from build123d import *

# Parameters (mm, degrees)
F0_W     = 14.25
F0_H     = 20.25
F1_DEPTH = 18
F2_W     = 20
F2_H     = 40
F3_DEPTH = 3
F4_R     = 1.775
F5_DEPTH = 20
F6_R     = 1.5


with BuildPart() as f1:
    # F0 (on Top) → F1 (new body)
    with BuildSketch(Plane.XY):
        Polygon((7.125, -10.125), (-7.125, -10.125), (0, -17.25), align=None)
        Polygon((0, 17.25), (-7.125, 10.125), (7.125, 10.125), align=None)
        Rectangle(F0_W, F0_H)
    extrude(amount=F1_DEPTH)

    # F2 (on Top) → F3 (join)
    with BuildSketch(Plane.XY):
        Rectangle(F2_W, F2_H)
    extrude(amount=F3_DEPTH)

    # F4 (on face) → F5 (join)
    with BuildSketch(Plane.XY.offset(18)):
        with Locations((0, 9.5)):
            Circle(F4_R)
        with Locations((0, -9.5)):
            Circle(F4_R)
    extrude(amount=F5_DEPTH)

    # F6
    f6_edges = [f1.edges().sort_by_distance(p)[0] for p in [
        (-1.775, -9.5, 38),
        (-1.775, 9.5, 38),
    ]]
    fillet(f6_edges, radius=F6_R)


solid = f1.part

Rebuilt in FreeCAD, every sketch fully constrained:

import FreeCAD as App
import Part
import Sketcher
from FreeCAD import Vector


def edges_at(feature, points):
    """Names of the edges that pass closest to the given points."""
    edges = feature.Shape.Edges
    near = lambda p: min(range(len(edges)), key=lambda i: edges[i].distToShape(Part.Vertex(*p))[0])
    return sorted({f"Edge{near(p) + 1}" for p in points})


def add_polygon(sketch, points):
    """Adds a closed chain of lines whose ends are joined by coincident constraints."""
    first, n = sketch.GeometryCount, len(points)
    for a, b in zip(points, points[1:] + points[:1]):
        sketch.addGeometry(Part.LineSegment(App.Vector(*a, 0), App.Vector(*b, 0)), False)
    for i in range(n):
        sketch.addConstraint(Sketcher.Constraint("Coincident", first + i, 2, first + (i + 1) % n, 1))

doc = App.newDocument("Part")
body = doc.addObject("PartDesign::Body", "Body")

# Sketch on XY plane
sketch1 = body.newObject("Sketcher::SketchObject", "Sketch")
sketch1.AttachmentSupport = (doc.getObject("XY_Plane"), [""])
sketch1.MapMode = "FlatFace"
add_polygon(sketch1, [(0, -17), (7, -10), (7, 10), (0, 17), (-7, 10), (-7, -10)])  # lines 0-5
sketch1.addConstraint([
    Sketcher.Constraint("Vertical", 1),
    Sketcher.Constraint("Vertical", 4),
    Sketcher.Constraint("Symmetric", 0, 2, 3, 2, -1, 1),
    Sketcher.Constraint("Symmetric", 2, 2, 5, 2, -1, 1),
    Sketcher.Constraint("PointOnObject", 2, 2, -2),
    Sketcher.Constraint("Perpendicular", 0, 2),
    Sketcher.Constraint("Perpendicular", 3, 5),
    Sketcher.Constraint("Horizontal", 1, 2, 3, 2),
    Sketcher.Constraint("DistanceY", 1, 1, 1, 2, 20.25),
    Sketcher.Constraint("DistanceY", 5, 2, 2, 2, 34.5),
])
pad1 = body.newObject("PartDesign::Pad", "Pad")
pad1.Profile = sketch1
pad1.Length = 18

# Sketch on XY plane
sketch2 = body.newObject("Sketcher::SketchObject", "Sketch001")
sketch2.AttachmentSupport = (doc.getObject("XY_Plane"), [""])
sketch2.MapMode = "FlatFace"
add_polygon(sketch2, [(-10, 20), (-10, -20), (10, -20), (10, 20)])  # lines 0-3
sketch2.addConstraint([
    Sketcher.Constraint("Vertical", 0),
    Sketcher.Constraint("Horizontal", 1),
    Sketcher.Constraint("Vertical", 2),
    Sketcher.Constraint("Horizontal", 3),
    Sketcher.Constraint("Symmetric", 0, 2, 2, 2, -1, 1),
    Sketcher.Constraint("DistanceX", 1, 1, 1, 2, 20.0),
    Sketcher.Constraint("DistanceY", 0, 2, 0, 1, 40.0),
])
pad2 = body.newObject("PartDesign::Pad", "Pad001")
pad2.Profile = sketch2
pad2.Length = 3

# Sketch on XY plane
sketch3 = body.newObject("Sketcher::SketchObject", "Sketch002")
sketch3.AttachmentSupport = (doc.getObject("XY_Plane"), [""])
sketch3.MapMode = "FlatFace"
sketch3.AttachmentOffset = App.Placement(Vector(0, 0, 18), App.Rotation())
sketch3.addGeometry([
    Part.Circle(Vector(0, 9.5, 0), Vector(0, 0, 1), 1.8),
    Part.Circle(Vector(0, -9.5, 0), Vector(0, 0, 1), 1.8),
], False)
sketch3.addConstraint([
    Sketcher.Constraint("Equal", 0, 1),
    Sketcher.Constraint("Symmetric", 0, 3, 1, 3, -1, 1),
    Sketcher.Constraint("PointOnObject", 0, 3, -2),
    Sketcher.Constraint("Diameter", 0, 3.55),
    Sketcher.Constraint("DistanceY", 1, 3, 0, 3, 19.0),
])
pad3 = body.newObject("PartDesign::Pad", "Pad002")
pad3.Profile = sketch3
pad3.Length = 20
doc.recompute()

fillet = body.newObject("PartDesign::Fillet", "Fillet")
fillet.Base = (pad3, edges_at(pad3, [(-1.775, -9.5, 38), (-1.775, 9.5, 38)]))
fillet.Radius = 1.5

doc.recompute()
